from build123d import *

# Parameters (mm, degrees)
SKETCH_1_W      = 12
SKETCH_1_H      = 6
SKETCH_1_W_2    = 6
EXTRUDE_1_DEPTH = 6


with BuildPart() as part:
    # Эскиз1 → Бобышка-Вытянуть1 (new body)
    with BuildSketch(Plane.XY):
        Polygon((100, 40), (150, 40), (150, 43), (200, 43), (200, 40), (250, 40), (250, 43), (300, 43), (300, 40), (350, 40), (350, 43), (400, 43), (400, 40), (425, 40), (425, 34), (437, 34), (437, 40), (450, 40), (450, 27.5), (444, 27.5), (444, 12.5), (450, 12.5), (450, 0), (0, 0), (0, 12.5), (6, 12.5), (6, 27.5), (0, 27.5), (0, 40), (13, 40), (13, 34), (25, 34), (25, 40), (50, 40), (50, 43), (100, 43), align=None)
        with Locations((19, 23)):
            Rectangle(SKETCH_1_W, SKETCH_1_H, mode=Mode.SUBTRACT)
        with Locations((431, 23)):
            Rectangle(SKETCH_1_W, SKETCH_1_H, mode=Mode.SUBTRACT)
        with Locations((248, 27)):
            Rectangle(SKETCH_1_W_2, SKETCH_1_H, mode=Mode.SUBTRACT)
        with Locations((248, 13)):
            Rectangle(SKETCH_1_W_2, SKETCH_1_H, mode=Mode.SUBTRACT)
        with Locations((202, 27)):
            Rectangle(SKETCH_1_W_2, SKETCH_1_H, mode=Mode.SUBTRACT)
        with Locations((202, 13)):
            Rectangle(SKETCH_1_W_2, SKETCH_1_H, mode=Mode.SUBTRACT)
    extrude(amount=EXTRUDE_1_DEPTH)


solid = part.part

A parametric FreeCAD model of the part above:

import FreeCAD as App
import Part
import Sketcher
Q = App.Units.Quantity


def add_polygon(sketch, points):
    """Adds a closed chain of lines whose ends are joined by coincident constraints."""
    first, n = sketch.GeometryCount, len(points)
    for a, b in zip(points, points[1:] + points[:1]):
        sketch.addGeometry(Part.LineSegment(App.Vector(*a, 0), App.Vector(*b, 0)), False)
    for i in range(n):
        sketch.addConstraint(Sketcher.Constraint("Coincident", first + i, 2, first + (i + 1) % n, 1))

doc = App.newDocument("Part")
params = doc.addObject("Spreadsheet::Sheet", "Params")
for row, (alias, value) in enumerate([
    ("sketch1_width", "50 mm"),
    ("sketch1_width2", "25 mm"),
    ("sketch1_width3", "12 mm"),
    ("sketch1_width4", "13 mm"),
    ("sketch1_width5", "6 mm"),
    ("pad1_length", "6 mm"),
], start=1):
    params.set(f"A{row}", alias)
    params.set(f"B{row}", "=" + value)
    params.setAlias(f"B{row}", alias)

body = doc.addObject("PartDesign::Body", "Body")

# Sketch on XY plane
sketch1 = body.newObject("Sketcher::SketchObject", "Sketch")
sketch1.AttachmentSupport = (doc.getObject("XY_Plane"), [""])
sketch1.MapMode = "FlatFace"
add_polygon(sketch1, [(150, 40), (100, 40), (100, 43), (50, 43), (50, 40), (25, 40), (25, 34), (13, 34), (13, 40), (0, 40), (0, 27.5), (6, 27.5), (6, 12.5), (0, 12.5), (0, 0), (450, 0), (450, 12.5), (444, 12.5), (444, 27.5), (450, 27.5), (450, 40), (437, 40), (437, 34), (425, 34), (425, 40), (400, 40), (400, 43), (350, 43), (350, 40), (300, 40), (300, 43), (250, 43), (250, 40), (200, 40), (200, 43), (150, 43)])  # lines 0-35
add_polygon(sketch1, [(245, 10), (245, 16), (251, 16), (251, 10)])  # lines 36-39
add_polygon(sketch1, [(199, 10), (199, 16), (205, 16), (205, 10)])  # lines 40-43
add_polygon(sketch1, [(425, 20), (425, 26), (437, 26), (437, 20)])  # lines 44-47
add_polygon(sketch1, [(245, 24), (245, 30), (251, 30), (251, 24)])  # lines 48-51
add_polygon(sketch1, [(13, 20), (13, 26), (25, 26), (25, 20)])  # lines 52-55
add_polygon(sketch1, [(199, 24), (199, 30), (205, 30), (205, 24)])  # lines 56-59
sketch1.addConstraint(Sketcher.Constraint("Horizontal", 0))
sketch1.addConstraint(Sketcher.Constraint("Vertical", 1))
sketch1.addConstraint(Sketcher.Constraint("Horizontal", 2))
sketch1.addConstraint(Sketcher.Constraint("Vertical", 3))
sketch1.addConstraint(Sketcher.Constraint("Horizontal", 4))
sketch1.addConstraint(Sketcher.Constraint("Vertical", 5))
sketch1.addConstraint(Sketcher.Constraint("Horizontal", 6))
sketch1.addConstraint(Sketcher.Constraint("Vertical", 7))
sketch1.addConstraint(Sketcher.Constraint("Horizontal", 8))
sketch1.addConstraint(Sketcher.Constraint("Vertical", 9))
sketch1.addConstraint(Sketcher.Constraint("Horizontal", 10))
sketch1.addConstraint(Sketcher.Constraint("Vertical", 11))
sketch1.addConstraint(Sketcher.Constraint("Horizontal", 12))
sketch1.addConstraint(Sketcher.Constraint("Vertical", 13))
sketch1.addConstraint(Sketcher.Constraint("Horizontal", 14))
sketch1.addConstraint(Sketcher.Constraint("Vertical", 15))
sketch1.addConstraint(Sketcher.Constraint("Horizontal", 16))
sketch1.addConstraint(Sketcher.Constraint("Vertical", 17))
sketch1.addConstraint(Sketcher.Constraint("Horizontal", 18))
sketch1.addConstraint(Sketcher.Constraint("Vertical", 19))
sketch1.addConstraint(Sketcher.Constraint("Horizontal", 20))
sketch1.addConstraint(Sketcher.Constraint("Vertical", 21))
sketch1.addConstraint(Sketcher.Constraint("Horizontal", 22))
sketch1.addConstraint(Sketcher.Constraint("Vertical", 23))
sketch1.addConstraint(Sketcher.Constraint("Horizontal", 24))
sketch1.addConstraint(Sketcher.Constraint("Vertical", 25))
sketch1.addConstraint(Sketcher.Constraint("Horizontal", 26))
sketch1.addConstraint(Sketcher.Constraint("Vertical", 27))
sketch1.addConstraint(Sketcher.Constraint("Horizontal", 28))
sketch1.addConstraint(Sketcher.Constraint("Vertical", 29))
sketch1.addConstraint(Sketcher.Constraint("Horizontal", 30))
sketch1.addConstraint(Sketcher.Constraint("Vertical", 31))
sketch1.addConstraint(Sketcher.Constraint("Horizontal", 32))
sketch1.addConstraint(Sketcher.Constraint("Vertical", 33))
sketch1.addConstraint(Sketcher.Constraint("Horizontal", 34))
sketch1.addConstraint(Sketcher.Constraint("Vertical", 35))
sketch1.addConstraint(Sketcher.Constraint("Vertical", 36))
sketch1.addConstraint(Sketcher.Constraint("Horizontal", 37))
sketch1.addConstraint(Sketcher.Constraint("Vertical", 38))
sketch1.addConstraint(Sketcher.Constraint("Horizontal", 39))
sketch1.addConstraint(Sketcher.Constraint("Vertical", 40))
sketch1.addConstraint(Sketcher.Constraint("Horizontal", 41))
sketch1.addConstraint(Sketcher.Constraint("Vertical", 42))
sketch1.addConstraint(Sketcher.Constraint("Horizontal", 43))
sketch1.addConstraint(Sketcher.Constraint("Vertical", 44))
sketch1.addConstraint(Sketcher.Constraint("Horizontal", 45))
sketch1.addConstraint(Sketcher.Constraint("Vertical", 46))
sketch1.addConstraint(Sketcher.Constraint("Horizontal", 47))
sketch1.addConstraint(Sketcher.Constraint("Vertical", 48))
sketch1.addConstraint(Sketcher.Constraint("Horizontal", 49))
sketch1.addConstraint(Sketcher.Constraint("Vertical", 50))
sketch1.addConstraint(Sketcher.Constraint("Horizontal", 51))
sketch1.addConstraint(Sketcher.Constraint("Vertical", 52))
sketch1.addConstraint(Sketcher.Constraint("Horizontal", 53))
sketch1.addConstraint(Sketcher.Constraint("Vertical", 54))
sketch1.addConstraint(Sketcher.Constraint("Horizontal", 55))
sketch1.addConstraint(Sketcher.Constraint("Vertical", 56))
sketch1.addConstraint(Sketcher.Constraint("Horizontal", 57))
sketch1.addConstraint(Sketcher.Constraint("Vertical", 58))
sketch1.addConstraint(Sketcher.Constraint("Horizontal", 59))
sketch1.addConstraint(Sketcher.Constraint("Coincident", 13, 2, -1, 1))
sketch1.addConstraint(Sketcher.Constraint("PointOnObject", 8, 2, -2))
sketch1.addConstraint(Sketcher.Constraint("Horizontal", 0, 2, 3, 2))
sketch1.addConstraint(Sketcher.Constraint("Horizontal", 4, 2, 7, 2))
sketch1.addConstraint(Sketcher.Constraint("Horizontal", 12, 2, 15, 2))
sketch1.addConstraint(Sketcher.Constraint("Horizontal", 10, 2, 17, 2))
sketch1.addConstraint(Sketcher.Constraint("Horizontal", 8, 2, 19, 2))
sketch1.addConstraint(Sketcher.Constraint("Horizontal", 6, 2, 21, 2))
sketch1.addConstraint(Sketcher.Constraint("Horizontal", 20, 2, 23, 2))
sketch1.addConstraint(Sketcher.Constraint("Horizontal", 2, 2, 25, 2))
sketch1.addConstraint(Sketcher.Constraint("Horizontal", 24, 2, 27, 2))
sketch1.addConstraint(Sketcher.Constraint("Horizontal", 26, 2, 29, 2))
sketch1.addConstraint(Sketcher.Constraint("Horizontal", 28, 2, 31, 2))
sketch1.addConstraint(Sketcher.Constraint("Horizontal", 30, 2, 33, 2))
sketch1.addConstraint(Sketcher.Constraint("Horizontal", 37, 2, 40, 2))
sketch1.addConstraint(Sketcher.Constraint("Horizontal", 39, 2, 42, 2))
sketch1.addConstraint(Sketcher.Constraint("Horizontal", 45, 2, 52, 2))
sketch1.addConstraint(Sketcher.Constraint("Horizontal", 47, 2, 54, 2))
sketch1.addConstraint(Sketcher.Constraint("Horizontal", 49, 2, 56, 2))
sketch1.addConstraint(Sketcher.Constraint("Horizontal", 51, 2, 58, 2))
sketch1.addConstraint(Sketcher.Constraint("Vertical", 15, 2, 18, 2))
sketch1.addConstraint(Sketcher.Constraint("Vertical", 23, 2, 44, 2))
sketch1.addConstraint(Sketcher.Constraint("Vertical", 21, 2, 45, 2))
sketch1.addConstraint(Sketcher.Constraint("Vertical", 39, 2, 48, 2))
sketch1.addConstraint(Sketcher.Constraint("Vertical", 38, 2, 49, 2))
sketch1.addConstraint(Sketcher.Constraint("Vertical", 7, 2, 52, 2))
sketch1.addConstraint(Sketcher.Constraint("Vertical", 5, 2, 53, 2))
sketch1.addConstraint(Sketcher.Constraint("Vertical", 43, 2, 56, 2))
sketch1.addConstraint(Sketcher.Constraint("Vertical", 42, 2, 57, 2))
sketch1.addConstraint(Sketcher.Constraint("Equal", 0, 2))
sketch1.addConstraint(Sketcher.Constraint("Equal", 12, 16))
sketch1.addConstraint(Sketcher.Constraint("Equal", 8, 20))
sketch1.addConstraint(Sketcher.Constraint("Equal", 6, 22))
sketch1.addConstraint(Sketcher.Constraint("Equal", 4, 24))
sketch1.addConstraint(Sketcher.Constraint("Equal", 2, 26))
sketch1.addConstraint(Sketcher.Constraint("Equal", 26, 28))
sketch1.addConstraint(Sketcher.Constraint("Equal", 28, 30))
sketch1.addConstraint(Sketcher.Constraint("Equal", 30, 32))
sketch1.addConstraint(Sketcher.Constraint("Equal", 32, 34))
sketch1.addConstraint(Sketcher.Constraint("Equal", 18, 37))
sketch1.addConstraint(Sketcher.Constraint("Equal", 39, 41))
sketch1.addConstraint(Sketcher.Constraint("Equal", 59, 5))
sketch1.addConstraint(Sketcher.Constraint("Equal", 9, 13))
sketch1.addConstraint(Sketcher.Constraint("Equal", 23, 36))
sketch1.addConstraint(Sketcher.Constraint("Equal", 42, 44))
sketch1.addConstraint(Sketcher.Constraint("Equal", 46, 48))
sketch1.addConstraint(Sketcher.Constraint("DistanceX", 0, 2, 0, 1, Q("50 mm")))
sketch1.addConstraint(Sketcher.Constraint("DistanceX", 4, 2, 4, 1, Q("25 mm")))
sketch1.addConstraint(Sketcher.Constraint("DistanceX", 6, 2, 6, 1, Q("12 mm")))
sketch1.addConstraint(Sketcher.Constraint("DistanceX", 8, 2, 8, 1, Q("13 mm")))
sketch1.addConstraint(Sketcher.Constraint("DistanceX", 10, 1, 10, 2, Q("6 mm")))
sketch1.addConstraint(Sketcher.Constraint("DistanceY", 1, 1, 1, 2, Q("3 mm")))
sketch1.addConstraint(Sketcher.Constraint("DistanceY", 11, 2, 11, 1, Q("15 mm")))
sketch1.addConstraint(Sketcher.Constraint("DistanceY", 9, 2, 9, 1, Q("12.5 mm")))
sketch1.addConstraint(Sketcher.Constraint("DistanceX", -1, 1, 36, 2, Q("245 mm")))
sketch1.addConstraint(Sketcher.Constraint("DistanceY", -1, 1, 36, 2, Q("16 mm")))
sketch1.addConstraint(Sketcher.Constraint("DistanceX", -1, 1, 40, 2, Q("199 mm")))
sketch1.addConstraint(Sketcher.Constraint("DistanceY", -1, 1, 44, 2, Q("26 mm")))
sketch1.addConstraint(Sketcher.Constraint("DistanceY", -1, 1, 48, 2, Q("30 mm")))
sketch1.setExpression("Constraints[166]", "Params.sketch1_width")
sketch1.setExpression("Constraints[167]", "Params.sketch1_width2")
sketch1.setExpression("Constraints[168]", "Params.sketch1_width3")
sketch1.setExpression("Constraints[169]", "Params.sketch1_width4")
sketch1.setExpression("Constraints[170]", "Params.sketch1_width5")
pad1 = body.newObject("PartDesign::Pad", "Pad")
pad1.Profile = sketch1
pad1.setExpression("Length", "Params.pad1_length")

doc.recompute()
